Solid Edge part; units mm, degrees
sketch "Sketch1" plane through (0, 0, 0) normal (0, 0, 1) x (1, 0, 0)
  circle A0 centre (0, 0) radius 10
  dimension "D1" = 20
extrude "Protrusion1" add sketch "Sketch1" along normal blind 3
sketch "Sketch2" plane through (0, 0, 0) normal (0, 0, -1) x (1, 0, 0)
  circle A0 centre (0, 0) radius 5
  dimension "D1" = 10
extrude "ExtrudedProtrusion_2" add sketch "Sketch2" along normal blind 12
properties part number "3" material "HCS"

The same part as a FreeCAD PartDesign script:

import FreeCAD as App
import Part
import Sketcher

V = App.Vector
Q = App.Units.Quantity

doc = App.newDocument("Part")
body = doc.addObject("PartDesign::Body", "Body")

sketch1 = doc.addObject("Sketcher::SketchObject", "Sketch")
body.addObject(sketch1)
sketch1.AttachmentSupport = (doc.XY_Plane, [""])
sketch1.MapMode = "FlatFace"
sketch1.addGeometry(Part.Circle(V(0, 0, 0), V(0, 0, 1), 10), False)
sketch1.addConstraint(Sketcher.Constraint("Coincident", 0, 3, -1, 1))
sketch1.addConstraint(Sketcher.Constraint("Diameter", 0, Q("20 mm")))
pad1 = doc.addObject("PartDesign::Pad", "Pad")
body.addObject(pad1)
pad1.Profile = sketch1
pad1.Length = 3

sketch2 = doc.addObject("Sketcher::SketchObject", "Sketch001")
body.addObject(sketch2)
sketch2.AttachmentSupport = (doc.XY_Plane, [""])
sketch2.MapMode = "FlatFace"
sketch2.addGeometry(Part.Circle(V(0, 0, 0), V(0, 0, 1), 5), False)
sketch2.addConstraint(Sketcher.Constraint("Coincident", 0, 3, -1, 1))
sketch2.addConstraint(Sketcher.Constraint("Diameter", 0, Q("10 mm")))
pad2 = doc.addObject("PartDesign::Pad", "Pad001")
body.addObject(pad2)
pad2.Profile = sketch2
pad2.Length = 12
pad2.Reversed = True

doc.recompute()
